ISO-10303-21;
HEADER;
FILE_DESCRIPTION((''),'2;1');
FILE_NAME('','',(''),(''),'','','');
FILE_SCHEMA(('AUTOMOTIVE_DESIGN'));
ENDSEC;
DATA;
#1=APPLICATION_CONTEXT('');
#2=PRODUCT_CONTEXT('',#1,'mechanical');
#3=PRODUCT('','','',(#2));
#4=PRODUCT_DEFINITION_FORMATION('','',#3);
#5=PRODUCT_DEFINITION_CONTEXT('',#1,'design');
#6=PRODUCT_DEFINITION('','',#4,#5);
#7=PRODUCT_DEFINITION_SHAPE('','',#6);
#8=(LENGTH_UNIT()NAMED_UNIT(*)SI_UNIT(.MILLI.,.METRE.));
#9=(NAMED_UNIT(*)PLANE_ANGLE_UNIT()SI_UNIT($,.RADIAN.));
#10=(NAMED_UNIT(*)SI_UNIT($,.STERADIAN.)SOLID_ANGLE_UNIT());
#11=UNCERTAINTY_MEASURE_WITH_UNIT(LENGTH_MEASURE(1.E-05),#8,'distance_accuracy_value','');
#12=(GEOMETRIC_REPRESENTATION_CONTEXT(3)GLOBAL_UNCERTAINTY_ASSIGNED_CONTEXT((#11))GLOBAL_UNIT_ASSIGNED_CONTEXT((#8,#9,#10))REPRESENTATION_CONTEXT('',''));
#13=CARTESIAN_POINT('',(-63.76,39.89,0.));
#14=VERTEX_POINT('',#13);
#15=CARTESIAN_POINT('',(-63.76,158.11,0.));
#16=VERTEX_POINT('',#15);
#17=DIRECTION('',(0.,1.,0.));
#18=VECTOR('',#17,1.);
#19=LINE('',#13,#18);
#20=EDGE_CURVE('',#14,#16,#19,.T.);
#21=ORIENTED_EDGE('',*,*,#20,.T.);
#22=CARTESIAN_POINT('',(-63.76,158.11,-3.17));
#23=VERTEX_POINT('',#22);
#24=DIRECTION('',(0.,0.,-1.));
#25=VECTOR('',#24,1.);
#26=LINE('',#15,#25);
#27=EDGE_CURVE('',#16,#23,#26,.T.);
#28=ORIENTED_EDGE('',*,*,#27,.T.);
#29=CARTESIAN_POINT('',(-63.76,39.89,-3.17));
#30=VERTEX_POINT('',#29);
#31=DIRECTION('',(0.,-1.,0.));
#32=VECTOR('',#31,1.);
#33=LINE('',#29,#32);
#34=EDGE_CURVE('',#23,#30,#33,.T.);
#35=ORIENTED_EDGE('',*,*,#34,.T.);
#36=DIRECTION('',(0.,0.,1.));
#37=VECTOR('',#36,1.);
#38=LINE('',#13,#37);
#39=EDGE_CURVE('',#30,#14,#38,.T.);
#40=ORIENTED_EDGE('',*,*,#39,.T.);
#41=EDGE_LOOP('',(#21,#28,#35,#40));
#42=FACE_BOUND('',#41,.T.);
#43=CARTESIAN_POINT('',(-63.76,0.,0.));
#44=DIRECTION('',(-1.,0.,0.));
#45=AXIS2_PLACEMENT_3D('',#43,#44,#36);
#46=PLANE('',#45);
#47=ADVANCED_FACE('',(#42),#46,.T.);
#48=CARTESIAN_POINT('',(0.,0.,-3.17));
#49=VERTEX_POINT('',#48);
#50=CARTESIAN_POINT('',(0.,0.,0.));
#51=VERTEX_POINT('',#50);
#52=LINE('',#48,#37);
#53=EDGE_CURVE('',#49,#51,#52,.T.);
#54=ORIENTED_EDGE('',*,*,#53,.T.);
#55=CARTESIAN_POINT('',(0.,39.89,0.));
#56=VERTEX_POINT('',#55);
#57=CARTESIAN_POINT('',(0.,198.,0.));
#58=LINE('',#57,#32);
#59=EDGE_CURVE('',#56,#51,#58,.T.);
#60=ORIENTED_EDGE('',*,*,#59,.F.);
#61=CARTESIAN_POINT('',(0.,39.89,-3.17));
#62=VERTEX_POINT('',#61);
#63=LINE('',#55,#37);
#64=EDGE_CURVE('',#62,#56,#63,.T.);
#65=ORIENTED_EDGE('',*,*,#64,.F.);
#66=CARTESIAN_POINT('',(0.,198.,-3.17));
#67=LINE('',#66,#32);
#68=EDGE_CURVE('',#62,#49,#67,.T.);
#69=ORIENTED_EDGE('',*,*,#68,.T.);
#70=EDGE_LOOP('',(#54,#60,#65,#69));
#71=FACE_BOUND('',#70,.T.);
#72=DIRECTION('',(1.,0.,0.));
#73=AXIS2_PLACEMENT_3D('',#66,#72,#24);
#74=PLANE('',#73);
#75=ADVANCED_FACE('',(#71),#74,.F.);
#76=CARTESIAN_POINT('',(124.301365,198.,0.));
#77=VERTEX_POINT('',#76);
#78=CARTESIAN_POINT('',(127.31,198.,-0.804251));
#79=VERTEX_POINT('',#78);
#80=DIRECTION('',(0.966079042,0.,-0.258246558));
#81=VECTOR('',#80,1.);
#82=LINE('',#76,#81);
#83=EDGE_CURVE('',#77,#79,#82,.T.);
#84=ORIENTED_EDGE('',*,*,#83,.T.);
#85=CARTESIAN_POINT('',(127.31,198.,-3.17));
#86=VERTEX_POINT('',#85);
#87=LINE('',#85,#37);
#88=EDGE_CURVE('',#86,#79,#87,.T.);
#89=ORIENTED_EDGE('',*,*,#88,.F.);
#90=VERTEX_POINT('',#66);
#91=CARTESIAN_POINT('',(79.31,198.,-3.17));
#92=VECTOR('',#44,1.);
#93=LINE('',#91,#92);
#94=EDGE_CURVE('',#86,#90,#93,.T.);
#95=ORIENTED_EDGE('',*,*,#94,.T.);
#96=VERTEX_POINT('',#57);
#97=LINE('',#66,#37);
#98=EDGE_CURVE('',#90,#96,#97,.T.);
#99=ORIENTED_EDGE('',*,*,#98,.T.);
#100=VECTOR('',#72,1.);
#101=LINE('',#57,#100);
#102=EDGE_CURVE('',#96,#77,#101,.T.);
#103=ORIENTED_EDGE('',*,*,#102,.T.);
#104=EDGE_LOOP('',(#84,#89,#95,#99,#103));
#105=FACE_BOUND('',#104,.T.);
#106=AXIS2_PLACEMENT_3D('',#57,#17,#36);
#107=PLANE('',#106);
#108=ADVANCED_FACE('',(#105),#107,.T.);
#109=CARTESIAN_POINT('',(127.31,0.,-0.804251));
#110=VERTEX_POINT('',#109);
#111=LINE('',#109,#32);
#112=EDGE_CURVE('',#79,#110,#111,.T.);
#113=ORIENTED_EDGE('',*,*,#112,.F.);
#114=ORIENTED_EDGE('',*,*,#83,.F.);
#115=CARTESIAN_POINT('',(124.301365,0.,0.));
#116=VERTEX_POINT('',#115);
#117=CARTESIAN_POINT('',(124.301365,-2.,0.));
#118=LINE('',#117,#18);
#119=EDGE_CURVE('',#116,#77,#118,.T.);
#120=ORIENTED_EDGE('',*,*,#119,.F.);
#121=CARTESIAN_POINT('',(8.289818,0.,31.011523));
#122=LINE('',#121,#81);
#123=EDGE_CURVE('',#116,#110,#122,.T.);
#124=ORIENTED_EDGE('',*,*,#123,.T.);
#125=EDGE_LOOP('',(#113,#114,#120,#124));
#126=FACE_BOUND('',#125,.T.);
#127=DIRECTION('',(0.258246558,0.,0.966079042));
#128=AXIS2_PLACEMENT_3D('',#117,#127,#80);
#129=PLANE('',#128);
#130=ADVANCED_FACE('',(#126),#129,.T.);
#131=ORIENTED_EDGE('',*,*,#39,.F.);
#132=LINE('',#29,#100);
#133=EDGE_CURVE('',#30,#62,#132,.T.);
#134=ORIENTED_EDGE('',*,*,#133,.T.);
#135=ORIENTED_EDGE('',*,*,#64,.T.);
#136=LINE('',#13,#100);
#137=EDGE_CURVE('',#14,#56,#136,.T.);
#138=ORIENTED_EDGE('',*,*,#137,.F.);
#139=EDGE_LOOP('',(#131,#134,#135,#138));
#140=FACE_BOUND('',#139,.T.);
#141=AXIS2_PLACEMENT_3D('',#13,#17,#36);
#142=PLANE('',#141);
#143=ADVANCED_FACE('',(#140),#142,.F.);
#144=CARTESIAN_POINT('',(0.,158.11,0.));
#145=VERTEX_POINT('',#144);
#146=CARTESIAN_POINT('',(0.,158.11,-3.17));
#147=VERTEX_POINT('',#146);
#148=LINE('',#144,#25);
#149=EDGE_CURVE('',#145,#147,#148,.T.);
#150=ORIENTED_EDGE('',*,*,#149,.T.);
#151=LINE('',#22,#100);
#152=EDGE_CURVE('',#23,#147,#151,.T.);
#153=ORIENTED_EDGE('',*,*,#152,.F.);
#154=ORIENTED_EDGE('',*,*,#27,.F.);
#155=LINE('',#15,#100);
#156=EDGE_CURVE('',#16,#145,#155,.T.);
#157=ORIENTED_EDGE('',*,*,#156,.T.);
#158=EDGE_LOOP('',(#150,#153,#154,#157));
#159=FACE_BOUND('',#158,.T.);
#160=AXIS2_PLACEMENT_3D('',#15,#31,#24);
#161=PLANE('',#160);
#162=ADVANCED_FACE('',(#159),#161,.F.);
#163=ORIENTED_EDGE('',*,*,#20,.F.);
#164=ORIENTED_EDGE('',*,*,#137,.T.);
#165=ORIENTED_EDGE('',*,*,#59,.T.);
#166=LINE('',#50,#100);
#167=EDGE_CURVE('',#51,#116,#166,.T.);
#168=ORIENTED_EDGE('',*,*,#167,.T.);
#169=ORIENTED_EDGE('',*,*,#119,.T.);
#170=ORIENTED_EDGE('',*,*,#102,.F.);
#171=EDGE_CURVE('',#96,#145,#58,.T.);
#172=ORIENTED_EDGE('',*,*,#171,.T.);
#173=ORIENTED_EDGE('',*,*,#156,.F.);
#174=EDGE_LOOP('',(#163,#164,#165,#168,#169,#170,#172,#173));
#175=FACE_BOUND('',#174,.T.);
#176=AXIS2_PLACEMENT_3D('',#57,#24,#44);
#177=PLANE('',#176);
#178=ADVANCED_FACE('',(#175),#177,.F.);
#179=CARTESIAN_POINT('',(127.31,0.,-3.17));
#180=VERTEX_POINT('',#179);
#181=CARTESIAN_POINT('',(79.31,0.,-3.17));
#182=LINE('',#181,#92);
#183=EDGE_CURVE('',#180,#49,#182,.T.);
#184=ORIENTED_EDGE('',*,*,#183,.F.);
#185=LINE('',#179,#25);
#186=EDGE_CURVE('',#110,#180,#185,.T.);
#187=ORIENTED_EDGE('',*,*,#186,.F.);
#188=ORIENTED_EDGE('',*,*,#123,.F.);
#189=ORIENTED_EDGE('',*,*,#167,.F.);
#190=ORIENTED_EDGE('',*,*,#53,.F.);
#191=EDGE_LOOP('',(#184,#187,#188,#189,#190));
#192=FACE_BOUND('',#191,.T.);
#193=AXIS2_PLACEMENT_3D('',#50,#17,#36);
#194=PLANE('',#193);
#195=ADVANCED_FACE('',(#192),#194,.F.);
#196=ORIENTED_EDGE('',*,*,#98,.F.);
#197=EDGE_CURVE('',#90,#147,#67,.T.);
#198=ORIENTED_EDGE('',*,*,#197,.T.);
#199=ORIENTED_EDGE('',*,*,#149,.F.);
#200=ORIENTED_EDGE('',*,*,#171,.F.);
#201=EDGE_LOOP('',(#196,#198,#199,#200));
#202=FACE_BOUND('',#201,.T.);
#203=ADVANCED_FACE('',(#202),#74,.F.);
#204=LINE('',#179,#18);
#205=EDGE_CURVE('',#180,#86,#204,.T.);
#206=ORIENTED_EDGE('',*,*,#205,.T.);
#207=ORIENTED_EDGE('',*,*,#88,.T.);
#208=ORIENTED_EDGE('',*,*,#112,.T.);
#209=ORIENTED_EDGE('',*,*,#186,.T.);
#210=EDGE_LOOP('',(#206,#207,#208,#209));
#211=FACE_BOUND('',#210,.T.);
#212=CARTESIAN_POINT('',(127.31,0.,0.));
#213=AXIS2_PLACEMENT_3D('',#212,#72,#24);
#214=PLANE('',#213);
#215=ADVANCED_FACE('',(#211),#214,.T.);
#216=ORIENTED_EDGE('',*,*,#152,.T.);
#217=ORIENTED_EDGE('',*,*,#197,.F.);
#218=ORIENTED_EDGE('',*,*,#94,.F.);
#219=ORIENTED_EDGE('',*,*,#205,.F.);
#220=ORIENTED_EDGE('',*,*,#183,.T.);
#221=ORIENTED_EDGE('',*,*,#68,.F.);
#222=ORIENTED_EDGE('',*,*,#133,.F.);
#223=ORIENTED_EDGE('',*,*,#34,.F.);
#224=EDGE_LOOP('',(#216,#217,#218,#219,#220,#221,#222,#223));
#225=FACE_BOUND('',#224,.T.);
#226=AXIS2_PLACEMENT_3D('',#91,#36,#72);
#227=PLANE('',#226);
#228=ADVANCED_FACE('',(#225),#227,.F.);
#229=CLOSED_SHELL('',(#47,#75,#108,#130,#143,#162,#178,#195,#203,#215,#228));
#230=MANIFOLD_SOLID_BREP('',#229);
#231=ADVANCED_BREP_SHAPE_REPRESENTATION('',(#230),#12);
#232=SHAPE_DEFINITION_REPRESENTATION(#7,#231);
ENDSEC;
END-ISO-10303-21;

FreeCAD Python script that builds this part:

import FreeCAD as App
import Part
import Sketcher


def add_polygon(sketch, points):
    """Adds a closed chain of lines whose ends are joined by coincident constraints."""
    first, n = sketch.GeometryCount, len(points)
    for a, b in zip(points, points[1:] + points[:1]):
        sketch.addGeometry(Part.LineSegment(App.Vector(*a, 0), App.Vector(*b, 0)), False)
    for i in range(n):
        sketch.addConstraint(Sketcher.Constraint("Coincident", first + i, 2, first + (i + 1) % n, 1))

doc = App.newDocument("Part")
params = doc.addObject("Spreadsheet::Sheet", "Params")
for row, (alias, value) in enumerate([
    ("sketch1_width", "79.31 mm"),
    ("sketch1_height", "3.17 mm"),
    ("pad1_length", "198 mm"),
    ("sketch2_width", "118.22 mm"),
    ("sketch2_height", "3.17 mm"),
    ("pad2_length", "63.76 mm"),
    ("sketch3_width", "198 mm"),
    ("sketch3_height", "3.17 mm"),
    ("pad3_length", "48 mm"),
    ("pocket1_length", "200 mm"),
], start=1):
    params.set(f"A{row}", alias)
    params.set(f"B{row}", "=" + value)
    params.setAlias(f"B{row}", alias)

body = doc.addObject("PartDesign::Body", "Body")

# Sketch on XZ plane
sketch1 = body.newObject("Sketcher::SketchObject", "Sketch")
sketch1.AttachmentSupport = (doc.getObject("XZ_Plane"), [""])
sketch1.MapMode = "FlatFace"
add_polygon(sketch1, [(0, -3.2), (0, 0), (79.3, 0), (79.3, -3.2)])  # lines 0-3
sketch1.addConstraint([
    Sketcher.Constraint("Vertical", 0),
    Sketcher.Constraint("Horizontal", 1),
    Sketcher.Constraint("Vertical", 2),
    Sketcher.Constraint("Horizontal", 3),
    Sketcher.Constraint("Coincident", 0, 2, -1, 1),
    Sketcher.Constraint("DistanceX", 1, 1, 1, 2, 79.31),
    Sketcher.Constraint("DistanceY", 0, 1, 0, 2, 3.17),
])
sketch1.setExpression("Constraints[9]", "Params.sketch1_width")
sketch1.setExpression("Constraints[10]", "Params.sketch1_height")
pad1 = body.newObject("PartDesign::Pad", "Pad")
pad1.Profile = sketch1
pad1.setExpression("Length", "Params.pad1_length")
pad1.Reversed = True

# Sketch on YZ plane
sketch2 = body.newObject("Sketcher::SketchObject", "Sketch001")
sketch2.AttachmentSupport = (doc.getObject("YZ_Plane"), [""])
sketch2.MapMode = "FlatFace"
add_polygon(sketch2, [(158.1, -3.2), (39.9, -3.2), (39.9, 0), (158.1, 0)])  # lines 0-3
sketch2.addConstraint([
    Sketcher.Constraint("Horizontal", 0),
    Sketcher.Constraint("Vertical", 1),
    Sketcher.Constraint("Horizontal", 2),
    Sketcher.Constraint("Vertical", 3),
    Sketcher.Constraint("PointOnObject", 1, 2, -1),
    Sketcher.Constraint("DistanceX", 0, 2, 0, 1, 118.22),
    Sketcher.Constraint("DistanceY", 1, 1, 1, 2, 3.17),
    Sketcher.Constraint("DistanceX", -1, 1, 0, 2, 39.89),
])
sketch2.setExpression("Constraints[9]", "Params.sketch2_width")
sketch2.setExpression("Constraints[10]", "Params.sketch2_height")
pad2 = body.newObject("PartDesign::Pad", "Pad001")
pad2.Profile = sketch2
pad2.setExpression("Length", "Params.pad2_length")
pad2.Reversed = True

# Sketch on YZ plane
sketch3 = body.newObject("Sketcher::SketchObject", "Sketch002")
sketch3.AttachmentSupport = (doc.getObject("YZ_Plane"), [""])
sketch3.MapMode = "FlatFace"
sketch3.AttachmentOffset = App.Placement(App.Vector(0, 0, 79.31), App.Rotation())
add_polygon(sketch3, [(198, 0), (0, 0), (0, -3.2), (198, -3.2)])  # lines 0-3
sketch3.addConstraint([
    Sketcher.Constraint("Horizontal", 0),
    Sketcher.Constraint("Vertical", 1),
    Sketcher.Constraint("Horizontal", 2),
    Sketcher.Constraint("Vertical", 3),
    Sketcher.Constraint("Coincident", 0, 2, -1, 1),
    Sketcher.Constraint("DistanceX", 0, 2, 0, 1, 198.0),
    Sketcher.Constraint("DistanceY", 1, 2, 1, 1, 3.17),
])
sketch3.setExpression("Constraints[9]", "Params.sketch3_width")
sketch3.setExpression("Constraints[10]", "Params.sketch3_height")
pad3 = body.newObject("PartDesign::Pad", "Pad002")
pad3.Profile = sketch3
pad3.setExpression("Length", "Params.pad3_length")

# Sketch on XZ plane
sketch4 = body.newObject("Sketcher::SketchObject", "Sketch003")
sketch4.AttachmentSupport = (doc.getObject("XZ_Plane"), [""])
sketch4.MapMode = "FlatFace"
sketch4.AttachmentOffset = App.Placement(App.Vector(0, 0, -198), App.Rotation())
add_polygon(sketch4, [(127.3, -0.8), (124.3, 0), (127.3, 0)])  # lines 0-2
sketch4.addConstraint([
    Sketcher.Constraint("Horizontal", 1),
    Sketcher.Constraint("Vertical", 2),
    Sketcher.Constraint("PointOnObject", 0, 2, -1),
    Sketcher.Constraint("Distance", 0, 3.137561),
    Sketcher.Constraint("DistanceX", 1, 1, 1, 2, 3.031132),
    Sketcher.Constraint("DistanceX", -1, 1, 0, 2, 124.301365),
])
pocket1 = body.newObject("PartDesign::Pocket", "Pocket")
pocket1.Profile = sketch4
pocket1.setExpression("Length", "Params.pocket1_length")
pocket1.Reversed = True

doc.recompute()
